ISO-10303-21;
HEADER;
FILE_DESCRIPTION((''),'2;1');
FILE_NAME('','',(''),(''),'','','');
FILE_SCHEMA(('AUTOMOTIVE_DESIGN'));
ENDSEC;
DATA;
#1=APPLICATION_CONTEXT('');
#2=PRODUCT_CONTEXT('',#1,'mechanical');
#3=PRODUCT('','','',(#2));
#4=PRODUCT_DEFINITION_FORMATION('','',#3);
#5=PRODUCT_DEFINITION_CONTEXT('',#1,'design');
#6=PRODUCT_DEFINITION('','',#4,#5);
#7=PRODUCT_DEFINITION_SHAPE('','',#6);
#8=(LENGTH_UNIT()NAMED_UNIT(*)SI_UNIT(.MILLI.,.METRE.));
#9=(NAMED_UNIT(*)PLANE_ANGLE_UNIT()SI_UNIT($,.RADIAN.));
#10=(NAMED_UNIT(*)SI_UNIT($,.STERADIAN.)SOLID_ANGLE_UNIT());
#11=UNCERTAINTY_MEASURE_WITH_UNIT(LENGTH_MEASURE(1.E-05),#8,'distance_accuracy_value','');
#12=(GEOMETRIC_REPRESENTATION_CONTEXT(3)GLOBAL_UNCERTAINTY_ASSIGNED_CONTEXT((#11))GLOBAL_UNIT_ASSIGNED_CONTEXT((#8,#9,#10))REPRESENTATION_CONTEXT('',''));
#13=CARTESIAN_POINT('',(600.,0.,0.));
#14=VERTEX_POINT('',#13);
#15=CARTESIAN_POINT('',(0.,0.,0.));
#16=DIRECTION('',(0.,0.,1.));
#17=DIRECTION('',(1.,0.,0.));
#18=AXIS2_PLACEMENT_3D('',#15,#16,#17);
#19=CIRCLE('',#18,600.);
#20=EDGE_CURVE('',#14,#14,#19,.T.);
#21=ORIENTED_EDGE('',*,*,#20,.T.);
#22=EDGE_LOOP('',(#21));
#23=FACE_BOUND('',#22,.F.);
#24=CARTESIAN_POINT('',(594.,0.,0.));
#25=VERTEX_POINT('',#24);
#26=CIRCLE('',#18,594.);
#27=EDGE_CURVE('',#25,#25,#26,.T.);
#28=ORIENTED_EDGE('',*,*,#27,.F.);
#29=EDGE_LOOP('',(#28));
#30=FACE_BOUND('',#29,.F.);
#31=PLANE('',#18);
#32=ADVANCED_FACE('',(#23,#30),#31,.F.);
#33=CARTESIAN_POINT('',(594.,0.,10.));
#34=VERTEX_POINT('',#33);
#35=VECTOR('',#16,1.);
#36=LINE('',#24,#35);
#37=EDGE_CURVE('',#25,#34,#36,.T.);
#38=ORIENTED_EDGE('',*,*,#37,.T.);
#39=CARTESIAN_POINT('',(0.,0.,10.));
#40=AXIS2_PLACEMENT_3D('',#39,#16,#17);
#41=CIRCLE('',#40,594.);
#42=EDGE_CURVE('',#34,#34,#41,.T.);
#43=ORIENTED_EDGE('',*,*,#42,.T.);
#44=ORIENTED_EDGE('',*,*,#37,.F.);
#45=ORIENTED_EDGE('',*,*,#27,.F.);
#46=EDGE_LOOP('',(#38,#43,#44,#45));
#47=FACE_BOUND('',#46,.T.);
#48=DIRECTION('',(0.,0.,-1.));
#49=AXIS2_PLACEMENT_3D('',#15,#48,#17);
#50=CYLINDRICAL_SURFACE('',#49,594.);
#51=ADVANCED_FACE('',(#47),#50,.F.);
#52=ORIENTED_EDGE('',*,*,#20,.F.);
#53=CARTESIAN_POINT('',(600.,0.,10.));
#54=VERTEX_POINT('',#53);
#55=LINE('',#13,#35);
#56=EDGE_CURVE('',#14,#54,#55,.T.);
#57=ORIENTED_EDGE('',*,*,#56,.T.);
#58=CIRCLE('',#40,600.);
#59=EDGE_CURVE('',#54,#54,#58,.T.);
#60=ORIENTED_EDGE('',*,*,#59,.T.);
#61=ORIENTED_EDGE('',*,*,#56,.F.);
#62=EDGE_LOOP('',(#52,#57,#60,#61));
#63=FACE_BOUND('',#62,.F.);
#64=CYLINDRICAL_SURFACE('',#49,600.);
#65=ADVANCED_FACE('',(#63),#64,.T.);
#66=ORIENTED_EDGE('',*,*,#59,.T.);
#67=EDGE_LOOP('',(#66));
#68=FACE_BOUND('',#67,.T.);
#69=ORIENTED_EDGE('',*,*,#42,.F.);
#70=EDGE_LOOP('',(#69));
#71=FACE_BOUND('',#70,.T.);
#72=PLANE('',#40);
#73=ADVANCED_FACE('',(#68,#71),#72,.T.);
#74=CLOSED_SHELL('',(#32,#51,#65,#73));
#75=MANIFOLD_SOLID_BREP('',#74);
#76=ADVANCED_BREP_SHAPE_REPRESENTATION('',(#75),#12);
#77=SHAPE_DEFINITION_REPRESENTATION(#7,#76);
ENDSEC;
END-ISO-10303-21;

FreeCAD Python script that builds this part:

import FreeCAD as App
import Part
import Sketcher
from FreeCAD import Vector
Q = App.Units.Quantity

doc = App.newDocument("Part")
body = doc.addObject("PartDesign::Body", "Body")

# Sketch on XY plane
sketch1 = body.newObject("Sketcher::SketchObject", "Sketch")
sketch1.AttachmentSupport = (doc.getObject("XY_Plane"), [""])
sketch1.MapMode = "FlatFace"
sketch1.addGeometry([
    Part.Circle(Vector(0, 0, 0), Vector(0, 0, 1), 600),
    Part.Circle(Vector(0, 0, 0), Vector(0, 0, 1), 594),
], False)
sketch1.addConstraint([
    Sketcher.Constraint("Coincident", 0, 3, -1, 1),
    Sketcher.Constraint("Coincident", 1, 3, -1, 1),
    Sketcher.Constraint("Diameter", 0, Q("1200 mm")),
    Sketcher.Constraint("Diameter", 1, Q("1188 mm")),
])
pad1 = body.newObject("PartDesign::Pad", "Pad")
pad1.Profile = sketch1
pad1.Length = 10

doc.recompute()
